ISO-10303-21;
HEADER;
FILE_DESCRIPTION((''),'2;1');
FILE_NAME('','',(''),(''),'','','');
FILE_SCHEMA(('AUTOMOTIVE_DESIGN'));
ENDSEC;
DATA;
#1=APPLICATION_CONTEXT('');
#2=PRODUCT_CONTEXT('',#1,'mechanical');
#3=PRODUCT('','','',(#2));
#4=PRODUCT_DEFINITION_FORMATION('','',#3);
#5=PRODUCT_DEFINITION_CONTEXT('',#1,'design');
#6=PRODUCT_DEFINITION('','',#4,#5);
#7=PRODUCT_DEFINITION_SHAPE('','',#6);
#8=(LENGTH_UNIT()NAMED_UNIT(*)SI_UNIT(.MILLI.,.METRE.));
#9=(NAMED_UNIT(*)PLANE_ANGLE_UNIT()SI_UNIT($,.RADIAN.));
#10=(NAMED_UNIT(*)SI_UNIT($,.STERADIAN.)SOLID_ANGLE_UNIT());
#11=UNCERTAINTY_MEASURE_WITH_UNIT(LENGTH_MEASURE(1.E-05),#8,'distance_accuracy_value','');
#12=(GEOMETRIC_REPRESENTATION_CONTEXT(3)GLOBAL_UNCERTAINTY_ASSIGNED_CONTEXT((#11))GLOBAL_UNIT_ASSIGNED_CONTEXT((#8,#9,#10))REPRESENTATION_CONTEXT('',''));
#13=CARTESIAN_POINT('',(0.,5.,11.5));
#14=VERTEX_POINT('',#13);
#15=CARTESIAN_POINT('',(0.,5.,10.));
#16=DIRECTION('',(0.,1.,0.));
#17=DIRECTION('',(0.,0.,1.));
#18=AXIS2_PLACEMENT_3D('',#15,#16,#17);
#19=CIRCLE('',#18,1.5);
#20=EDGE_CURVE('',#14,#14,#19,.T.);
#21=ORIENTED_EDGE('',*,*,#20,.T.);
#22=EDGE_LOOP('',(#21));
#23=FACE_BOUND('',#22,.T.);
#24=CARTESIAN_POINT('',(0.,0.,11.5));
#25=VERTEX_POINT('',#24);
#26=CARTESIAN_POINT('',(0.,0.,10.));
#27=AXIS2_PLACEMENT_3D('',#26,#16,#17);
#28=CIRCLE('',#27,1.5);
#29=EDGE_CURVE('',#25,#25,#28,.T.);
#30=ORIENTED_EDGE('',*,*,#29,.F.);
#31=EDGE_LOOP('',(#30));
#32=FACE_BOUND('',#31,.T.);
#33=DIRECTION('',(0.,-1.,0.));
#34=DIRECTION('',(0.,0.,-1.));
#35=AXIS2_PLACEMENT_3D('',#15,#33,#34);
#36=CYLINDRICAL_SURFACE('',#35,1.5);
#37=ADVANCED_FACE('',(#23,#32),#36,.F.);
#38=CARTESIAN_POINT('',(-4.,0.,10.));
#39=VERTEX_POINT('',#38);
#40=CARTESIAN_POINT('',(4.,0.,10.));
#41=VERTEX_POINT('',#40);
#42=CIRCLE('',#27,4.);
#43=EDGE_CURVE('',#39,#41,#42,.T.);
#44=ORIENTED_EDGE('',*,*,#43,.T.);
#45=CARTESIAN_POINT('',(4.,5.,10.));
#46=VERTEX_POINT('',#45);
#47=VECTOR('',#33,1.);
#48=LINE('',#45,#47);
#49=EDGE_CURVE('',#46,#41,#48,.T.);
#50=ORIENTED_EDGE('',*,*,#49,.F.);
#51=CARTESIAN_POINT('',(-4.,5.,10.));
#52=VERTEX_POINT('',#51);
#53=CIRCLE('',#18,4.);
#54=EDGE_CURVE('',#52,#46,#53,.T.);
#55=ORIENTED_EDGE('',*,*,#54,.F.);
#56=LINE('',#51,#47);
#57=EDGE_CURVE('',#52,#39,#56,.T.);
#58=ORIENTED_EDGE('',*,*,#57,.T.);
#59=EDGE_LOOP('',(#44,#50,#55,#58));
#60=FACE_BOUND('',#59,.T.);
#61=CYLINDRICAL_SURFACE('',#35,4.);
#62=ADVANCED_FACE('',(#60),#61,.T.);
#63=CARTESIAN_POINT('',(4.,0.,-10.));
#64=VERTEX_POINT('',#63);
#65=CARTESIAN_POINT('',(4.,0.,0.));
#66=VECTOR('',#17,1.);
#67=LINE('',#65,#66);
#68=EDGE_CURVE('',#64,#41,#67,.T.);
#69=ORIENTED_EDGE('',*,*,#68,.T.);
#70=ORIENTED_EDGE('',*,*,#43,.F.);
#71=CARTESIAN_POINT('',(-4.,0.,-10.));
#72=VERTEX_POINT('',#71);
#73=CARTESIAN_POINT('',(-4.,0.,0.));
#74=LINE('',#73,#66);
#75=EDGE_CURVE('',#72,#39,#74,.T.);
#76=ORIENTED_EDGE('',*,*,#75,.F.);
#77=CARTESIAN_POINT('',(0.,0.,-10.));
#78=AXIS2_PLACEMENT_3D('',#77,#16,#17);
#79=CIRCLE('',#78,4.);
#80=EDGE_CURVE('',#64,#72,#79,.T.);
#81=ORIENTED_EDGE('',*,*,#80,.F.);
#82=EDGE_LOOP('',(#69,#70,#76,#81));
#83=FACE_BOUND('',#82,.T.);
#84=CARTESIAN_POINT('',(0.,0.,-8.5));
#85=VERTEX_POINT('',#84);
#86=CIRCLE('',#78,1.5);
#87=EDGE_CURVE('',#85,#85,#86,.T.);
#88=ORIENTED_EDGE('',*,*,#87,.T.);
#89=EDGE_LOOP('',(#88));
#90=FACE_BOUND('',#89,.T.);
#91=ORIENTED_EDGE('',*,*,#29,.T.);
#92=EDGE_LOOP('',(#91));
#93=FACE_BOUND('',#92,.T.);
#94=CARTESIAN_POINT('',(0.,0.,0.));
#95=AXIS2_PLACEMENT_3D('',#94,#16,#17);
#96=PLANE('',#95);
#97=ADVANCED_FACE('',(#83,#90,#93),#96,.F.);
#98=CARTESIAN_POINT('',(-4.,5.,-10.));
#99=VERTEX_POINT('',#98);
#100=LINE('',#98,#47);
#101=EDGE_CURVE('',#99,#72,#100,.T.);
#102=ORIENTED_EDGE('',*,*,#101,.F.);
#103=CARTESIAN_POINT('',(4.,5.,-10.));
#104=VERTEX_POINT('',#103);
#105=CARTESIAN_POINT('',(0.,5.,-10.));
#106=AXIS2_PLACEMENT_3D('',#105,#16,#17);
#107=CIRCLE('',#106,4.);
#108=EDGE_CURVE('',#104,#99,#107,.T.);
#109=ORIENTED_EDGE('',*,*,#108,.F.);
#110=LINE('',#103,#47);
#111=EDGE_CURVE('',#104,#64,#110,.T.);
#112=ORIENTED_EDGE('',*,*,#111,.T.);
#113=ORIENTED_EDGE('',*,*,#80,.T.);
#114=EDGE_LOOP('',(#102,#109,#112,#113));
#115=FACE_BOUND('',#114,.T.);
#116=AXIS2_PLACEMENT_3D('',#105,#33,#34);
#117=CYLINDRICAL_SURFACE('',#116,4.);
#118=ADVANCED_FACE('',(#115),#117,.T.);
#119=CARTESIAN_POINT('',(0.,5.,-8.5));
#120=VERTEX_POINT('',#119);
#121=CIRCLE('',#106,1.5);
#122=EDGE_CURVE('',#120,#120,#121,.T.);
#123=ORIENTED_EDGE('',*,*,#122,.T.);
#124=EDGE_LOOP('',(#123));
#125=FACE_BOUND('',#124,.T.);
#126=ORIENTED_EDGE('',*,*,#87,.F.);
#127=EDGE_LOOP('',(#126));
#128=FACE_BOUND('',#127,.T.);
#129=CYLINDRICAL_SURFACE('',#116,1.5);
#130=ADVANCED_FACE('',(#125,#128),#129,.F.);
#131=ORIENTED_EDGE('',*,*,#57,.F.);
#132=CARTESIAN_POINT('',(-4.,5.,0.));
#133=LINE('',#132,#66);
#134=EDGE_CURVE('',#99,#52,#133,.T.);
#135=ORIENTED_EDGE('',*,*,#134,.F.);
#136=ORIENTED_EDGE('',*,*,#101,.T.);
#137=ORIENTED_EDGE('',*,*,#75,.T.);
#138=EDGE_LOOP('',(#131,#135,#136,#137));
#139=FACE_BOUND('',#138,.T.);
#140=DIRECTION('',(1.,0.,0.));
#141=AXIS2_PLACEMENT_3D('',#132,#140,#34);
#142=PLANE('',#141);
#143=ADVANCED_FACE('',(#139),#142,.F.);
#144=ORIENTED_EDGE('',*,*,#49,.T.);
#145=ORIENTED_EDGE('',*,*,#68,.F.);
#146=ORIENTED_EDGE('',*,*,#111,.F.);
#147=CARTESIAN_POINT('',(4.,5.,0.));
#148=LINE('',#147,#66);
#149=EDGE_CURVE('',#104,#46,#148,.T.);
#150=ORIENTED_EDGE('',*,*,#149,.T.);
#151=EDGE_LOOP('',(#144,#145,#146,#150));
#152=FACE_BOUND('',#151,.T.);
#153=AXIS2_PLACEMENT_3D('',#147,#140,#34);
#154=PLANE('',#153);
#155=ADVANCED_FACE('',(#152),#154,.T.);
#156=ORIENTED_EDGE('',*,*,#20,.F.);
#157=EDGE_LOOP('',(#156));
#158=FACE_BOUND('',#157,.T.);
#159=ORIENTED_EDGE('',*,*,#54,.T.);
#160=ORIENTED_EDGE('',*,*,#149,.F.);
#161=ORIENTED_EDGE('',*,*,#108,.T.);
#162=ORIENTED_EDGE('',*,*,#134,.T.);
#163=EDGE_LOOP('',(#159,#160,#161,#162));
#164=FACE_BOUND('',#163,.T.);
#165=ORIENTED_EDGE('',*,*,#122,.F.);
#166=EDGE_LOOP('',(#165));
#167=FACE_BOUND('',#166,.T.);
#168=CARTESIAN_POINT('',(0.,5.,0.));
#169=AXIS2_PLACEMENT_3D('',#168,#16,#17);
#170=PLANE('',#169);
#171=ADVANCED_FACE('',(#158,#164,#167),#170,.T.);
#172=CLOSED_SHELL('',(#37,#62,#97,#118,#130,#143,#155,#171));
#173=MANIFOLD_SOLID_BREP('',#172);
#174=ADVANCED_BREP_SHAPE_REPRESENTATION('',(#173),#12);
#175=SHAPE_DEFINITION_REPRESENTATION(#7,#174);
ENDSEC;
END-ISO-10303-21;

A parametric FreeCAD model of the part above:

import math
import FreeCAD as App
import Part
import Sketcher
from FreeCAD import Vector
Q = App.Units.Quantity

doc = App.newDocument("Part")
body = doc.addObject("PartDesign::Body", "Body")

# Sketch on XZ plane
sketch1 = body.newObject("Sketcher::SketchObject", "Sketch")
sketch1.AttachmentSupport = (doc.getObject("XZ_Plane"), [""])
sketch1.MapMode = "FlatFace"
sketch1.addGeometry([
    Part.LineSegment(Vector(4, 10, 0), Vector(4, -10, 0)),  # 0
    Part.ArcOfCircle(Part.Circle(Vector(0, -10, 0), Vector(0, 0, 1), 4), math.radians(180), math.radians(360)),  # 1
    Part.LineSegment(Vector(-4, -10, 0), Vector(-4, 10, 0)),  # 2
    Part.ArcOfCircle(Part.Circle(Vector(0, 10, 0), Vector(0, 0, 1), 4), math.radians(0), math.radians(180)),  # 3
    Part.Circle(Vector(0, 10, 0), Vector(0, 0, 1), 1.5),  # 4
    Part.Circle(Vector(0, -10, 0), Vector(0, 0, 1), 1.5),  # 5
], False)
sketch1.addConstraint([
    Sketcher.Constraint("Tangent", 0, 2, 1, 2),
    Sketcher.Constraint("Tangent", 1, 1, 2, 1),
    Sketcher.Constraint("Tangent", 2, 2, 3, 2),
    Sketcher.Constraint("Tangent", 3, 1, 0, 1),
    Sketcher.Constraint("Vertical", 0),
    Sketcher.Constraint("Vertical", 2),
    Sketcher.Constraint("Coincident", 4, 3, 3, 3),
    Sketcher.Constraint("Coincident", 5, 3, 1, 3),
    Sketcher.Constraint("Equal", 4, 5),
    Sketcher.Constraint("Symmetric", 1, 3, 3, 3, -1, 1),
    Sketcher.Constraint("Diameter", 4, Q("3 mm")),
    Sketcher.Constraint("Radius", 1, Q("4 mm")),
    Sketcher.Constraint("DistanceY", 0, 2, 0, 1, Q("20 mm")),
])
pad1 = body.newObject("PartDesign::Pad", "Pad")
pad1.Profile = sketch1
pad1.Length = 5
pad1.Reversed = True

doc.recompute()
